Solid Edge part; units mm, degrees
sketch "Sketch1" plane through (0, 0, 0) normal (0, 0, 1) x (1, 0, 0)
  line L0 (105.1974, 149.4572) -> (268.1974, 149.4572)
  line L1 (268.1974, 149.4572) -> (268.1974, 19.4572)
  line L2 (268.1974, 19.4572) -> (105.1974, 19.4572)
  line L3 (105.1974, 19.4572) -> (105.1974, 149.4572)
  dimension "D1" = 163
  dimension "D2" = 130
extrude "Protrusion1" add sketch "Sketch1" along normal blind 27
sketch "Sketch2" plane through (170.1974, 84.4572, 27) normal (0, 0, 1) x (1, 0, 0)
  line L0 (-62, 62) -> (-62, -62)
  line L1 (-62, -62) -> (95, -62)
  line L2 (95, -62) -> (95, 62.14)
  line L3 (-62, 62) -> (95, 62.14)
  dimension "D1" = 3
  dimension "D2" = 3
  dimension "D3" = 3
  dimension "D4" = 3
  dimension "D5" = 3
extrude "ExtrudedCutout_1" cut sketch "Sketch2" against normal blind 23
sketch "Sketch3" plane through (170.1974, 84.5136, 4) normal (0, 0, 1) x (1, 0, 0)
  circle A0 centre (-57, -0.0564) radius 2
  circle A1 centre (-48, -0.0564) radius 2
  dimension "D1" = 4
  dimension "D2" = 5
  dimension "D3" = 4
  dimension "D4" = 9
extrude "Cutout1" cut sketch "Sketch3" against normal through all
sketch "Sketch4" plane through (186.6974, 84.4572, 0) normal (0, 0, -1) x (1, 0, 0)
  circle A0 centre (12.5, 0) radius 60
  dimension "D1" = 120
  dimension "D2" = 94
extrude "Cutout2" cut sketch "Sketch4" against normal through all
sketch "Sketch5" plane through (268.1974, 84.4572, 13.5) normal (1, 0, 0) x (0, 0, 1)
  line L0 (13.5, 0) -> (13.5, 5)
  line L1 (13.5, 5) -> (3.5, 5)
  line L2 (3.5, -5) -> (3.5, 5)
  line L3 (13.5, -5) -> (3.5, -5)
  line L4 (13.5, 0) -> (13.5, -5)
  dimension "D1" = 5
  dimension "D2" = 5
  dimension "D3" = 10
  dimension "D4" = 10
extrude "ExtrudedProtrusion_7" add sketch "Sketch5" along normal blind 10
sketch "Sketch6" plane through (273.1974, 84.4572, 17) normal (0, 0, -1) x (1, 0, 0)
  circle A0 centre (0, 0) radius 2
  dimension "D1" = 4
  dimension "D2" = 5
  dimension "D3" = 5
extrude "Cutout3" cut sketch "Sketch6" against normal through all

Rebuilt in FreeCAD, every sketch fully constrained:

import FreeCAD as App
import Part
import Sketcher
from FreeCAD import Vector


def add_polygon(sketch, points):
    """Adds a closed chain of lines whose ends are joined by coincident constraints."""
    first, n = sketch.GeometryCount, len(points)
    for a, b in zip(points, points[1:] + points[:1]):
        sketch.addGeometry(Part.LineSegment(App.Vector(*a, 0), App.Vector(*b, 0)), False)
    for i in range(n):
        sketch.addConstraint(Sketcher.Constraint("Coincident", first + i, 2, first + (i + 1) % n, 1))

doc = App.newDocument("Part")
body = doc.addObject("PartDesign::Body", "Body")

sketch1 = body.newObject("Sketcher::SketchObject", "Sketch")
sketch1.AttachmentSupport = (doc.getObject("XY_Plane"), [""])
sketch1.MapMode = "FlatFace"
add_polygon(sketch1, [(268, 149), (105, 149), (105, 19), (268, 19)])
sketch1.addConstraint([
    Sketcher.Constraint("Horizontal", 0),
    Sketcher.Constraint("Vertical", 1),
    Sketcher.Constraint("Horizontal", 2),
    Sketcher.Constraint("Vertical", 3),
    Sketcher.Constraint("DistanceX", 0, 2, 0, 1, 163.0),
    Sketcher.Constraint("DistanceY", 1, 2, 1, 1, 130.0),
    Sketcher.Constraint("DistanceX", -1, 1, 0, 2, 105.1974),
    Sketcher.Constraint("DistanceY", -1, 1, 0, 2, 149.4572),
])
pad1 = body.newObject("PartDesign::Pad", "Pad")
pad1.Profile = sketch1
pad1.Length = 27

sketch2 = body.newObject("Sketcher::SketchObject", "Sketch001")
sketch2.AttachmentSupport = (doc.getObject("XY_Plane"), [""])
sketch2.MapMode = "FlatFace"
sketch2.AttachmentOffset = App.Placement(Vector(0, 0, 27), App.Rotation())
add_polygon(sketch2, [(265, 147), (108, 146), (108, 22), (265, 22)])
sketch2.addConstraint([
    Sketcher.Constraint("Vertical", 1),
    Sketcher.Constraint("Horizontal", 2),
    Sketcher.Constraint("Vertical", 3),
    Sketcher.Constraint("DistanceX", 2, 1, 2, 2, 157.0),
    Sketcher.Constraint("DistanceY", 1, 2, 1, 1, 124.0),
    Sketcher.Constraint("DistanceY", 3, 1, 3, 2, 124.14),
    Sketcher.Constraint("DistanceX", -1, 1, 0, 2, 108.1974),
    Sketcher.Constraint("DistanceY", -1, 1, 0, 2, 146.4572),
])
pocket1 = body.newObject("PartDesign::Pocket", "Pocket")
pocket1.Profile = sketch2
pocket1.Length = 23

sketch3 = body.newObject("Sketcher::SketchObject", "Sketch002")
sketch3.AttachmentSupport = (doc.getObject("XY_Plane"), [""])
sketch3.MapMode = "FlatFace"
sketch3.AttachmentOffset = App.Placement(Vector(0, 0, 4), App.Rotation())
sketch3.addGeometry([
    Part.Circle(Vector(113.2, 84.5, 0), Vector(0, 0, 1), 2),
    Part.Circle(Vector(122.2, 84.5, 0), Vector(0, 0, 1), 2),
], False)
sketch3.addConstraint([
    Sketcher.Constraint("Equal", 0, 1),
    Sketcher.Constraint("Horizontal", 0, 3, 1, 3),
    Sketcher.Constraint("Diameter", 0, 4.0),
    Sketcher.Constraint("DistanceX", 0, 3, 1, 3, 9.0),
    Sketcher.Constraint("DistanceX", -1, 1, 0, 3, 113.1974),
    Sketcher.Constraint("DistanceY", -1, 1, 0, 3, 84.4572),
])
pocket2 = body.newObject("PartDesign::Pocket", "Pocket001")
pocket2.Profile = sketch3
pocket2.Type = "ThroughAll"

sketch4 = body.newObject("Sketcher::SketchObject", "Sketch003")
sketch4.AttachmentSupport = (doc.getObject("XY_Plane"), [""])
sketch4.MapMode = "FlatFace"
sketch4.addGeometry(Part.Circle(Vector(199, 84, 0), Vector(0, 0, 1), 60), False)
sketch4.addConstraint([
    Sketcher.Constraint("Diameter", 0, 120.0),
    Sketcher.Constraint("DistanceX", -1, 1, 0, 3, 199.1974),
    Sketcher.Constraint("DistanceY", -1, 1, 0, 3, 84.4572),
])
pocket3 = body.newObject("PartDesign::Pocket", "Pocket002")
pocket3.Profile = sketch4
pocket3.Type = "ThroughAll"
pocket3.Reversed = True

sketch5 = body.newObject("Sketcher::SketchObject", "Sketch004")
sketch5.AttachmentSupport = (doc.getObject("YZ_Plane"), [""])
sketch5.MapMode = "FlatFace"
sketch5.AttachmentOffset = App.Placement(Vector(0, 0, 268.1974), App.Rotation())
add_polygon(sketch5, [(89, 27), (79, 27), (79, 17), (89, 17)])
sketch5.addConstraint([
    Sketcher.Constraint("Horizontal", 0),
    Sketcher.Constraint("Vertical", 1),
    Sketcher.Constraint("Horizontal", 2),
    Sketcher.Constraint("Vertical", 3),
    Sketcher.Constraint("Equal", 2, 1),
    Sketcher.Constraint("DistanceX", 0, 2, 0, 1, 10.0),
    Sketcher.Constraint("DistanceY", -1, 1, 0, 2, 27.0),
    Sketcher.Constraint("DistanceX", -1, 1, 0, 2, 79.4572),
])
pad2 = body.newObject("PartDesign::Pad", "Pad001")
pad2.Profile = sketch5
pad2.Length = 10

sketch6 = body.newObject("Sketcher::SketchObject", "Sketch005")
sketch6.AttachmentSupport = (doc.getObject("XY_Plane"), [""])
sketch6.MapMode = "FlatFace"
sketch6.AttachmentOffset = App.Placement(Vector(0, 0, 17), App.Rotation())
sketch6.addGeometry(Part.Circle(Vector(273.2, 84.5, 0), Vector(0, 0, 1), 2), False)
sketch6.addConstraint([
    Sketcher.Constraint("Diameter", 0, 4.0),
    Sketcher.Constraint("DistanceX", -1, 1, 0, 3, 273.1974),
    Sketcher.Constraint("DistanceY", -1, 1, 0, 3, 84.4572),
])
pocket4 = body.newObject("PartDesign::Pocket", "Pocket003")
pocket4.Profile = sketch6
pocket4.Type = "ThroughAll"
pocket4.Reversed = True

doc.recompute()
